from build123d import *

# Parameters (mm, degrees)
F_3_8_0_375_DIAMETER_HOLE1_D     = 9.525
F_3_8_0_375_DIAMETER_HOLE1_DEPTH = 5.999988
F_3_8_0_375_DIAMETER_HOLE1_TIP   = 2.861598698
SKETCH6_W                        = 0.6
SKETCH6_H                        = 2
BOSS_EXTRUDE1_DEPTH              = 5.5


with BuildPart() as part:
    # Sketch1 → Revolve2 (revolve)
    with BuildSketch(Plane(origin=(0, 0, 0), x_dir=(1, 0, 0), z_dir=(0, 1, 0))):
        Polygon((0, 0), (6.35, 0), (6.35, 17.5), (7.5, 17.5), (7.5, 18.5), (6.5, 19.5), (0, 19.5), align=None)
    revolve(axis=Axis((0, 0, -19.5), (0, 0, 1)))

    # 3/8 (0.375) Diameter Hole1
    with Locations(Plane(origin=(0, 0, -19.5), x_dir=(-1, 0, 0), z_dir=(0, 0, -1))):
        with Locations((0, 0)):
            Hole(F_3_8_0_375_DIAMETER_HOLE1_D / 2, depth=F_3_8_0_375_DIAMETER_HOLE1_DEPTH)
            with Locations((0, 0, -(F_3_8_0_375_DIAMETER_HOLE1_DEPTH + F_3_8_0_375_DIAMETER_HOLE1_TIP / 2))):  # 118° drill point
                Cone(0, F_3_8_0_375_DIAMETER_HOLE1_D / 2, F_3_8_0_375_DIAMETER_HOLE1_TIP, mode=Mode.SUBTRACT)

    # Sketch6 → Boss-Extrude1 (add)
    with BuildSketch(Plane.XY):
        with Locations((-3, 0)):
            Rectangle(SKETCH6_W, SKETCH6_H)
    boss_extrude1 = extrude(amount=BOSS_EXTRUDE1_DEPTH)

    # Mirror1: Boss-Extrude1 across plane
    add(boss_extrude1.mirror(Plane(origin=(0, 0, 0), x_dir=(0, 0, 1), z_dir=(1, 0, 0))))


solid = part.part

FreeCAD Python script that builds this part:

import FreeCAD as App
import Part
import Sketcher
Q = App.Units.Quantity

doc = App.newDocument("Part")
body = doc.addObject("PartDesign::Body", "Body")

sketch1 = body.newObject("Sketcher::SketchObject", "Sketch")
sketch1.AttachmentSupport = (doc.getObject("XZ_Plane"), [""])
sketch1.MapMode = "FlatFace"
sketch1.addGeometry(Part.LineSegment(App.Vector(0, 0, 0), App.Vector(6.3, 0, 0)), False)
sketch1.addGeometry(Part.LineSegment(App.Vector(6.3, 0, 0), App.Vector(6.3, -17.5, 0)), False)
sketch1.addGeometry(Part.LineSegment(App.Vector(6.3, -17.5, 0), App.Vector(7.5, -17.5, 0)), False)
sketch1.addGeometry(Part.LineSegment(App.Vector(7.5, -17.5, 0), App.Vector(7.5, -18.5, 0)), False)
sketch1.addGeometry(Part.LineSegment(App.Vector(7.5, -18.5, 0), App.Vector(6.5, -19.5, 0)), False)
sketch1.addGeometry(Part.LineSegment(App.Vector(6.5, -19.5, 0), App.Vector(0, -19.5, 0)), False)
sketch1.addGeometry(Part.LineSegment(App.Vector(0, -19.5, 0), App.Vector(0, 0, 0)), False)
sketch1.addConstraint(Sketcher.Constraint("Coincident", 0, 2, 1, 1))
sketch1.addConstraint(Sketcher.Constraint("Coincident", 1, 2, 2, 1))
sketch1.addConstraint(Sketcher.Constraint("Coincident", 2, 2, 3, 1))
sketch1.addConstraint(Sketcher.Constraint("Coincident", 3, 2, 4, 1))
sketch1.addConstraint(Sketcher.Constraint("Coincident", 4, 2, 5, 1))
sketch1.addConstraint(Sketcher.Constraint("Coincident", 5, 2, 6, 1))
sketch1.addConstraint(Sketcher.Constraint("Coincident", 6, 2, 0, 1))
sketch1.addConstraint(Sketcher.Constraint("Horizontal", 0))
sketch1.addConstraint(Sketcher.Constraint("Vertical", 1))
sketch1.addConstraint(Sketcher.Constraint("Horizontal", 2))
sketch1.addConstraint(Sketcher.Constraint("Vertical", 3))
sketch1.addConstraint(Sketcher.Constraint("Horizontal", 5))
sketch1.addConstraint(Sketcher.Constraint("Vertical", 6))
sketch1.addConstraint(Sketcher.Constraint("Coincident", 6, 2, -1, 1))
sketch1.addConstraint(Sketcher.Constraint("DistanceY", 3, 2, 3, 1, Q("1 mm")))
sketch1.addConstraint(Sketcher.Constraint("Angle", 4, Q("-135 deg")))
sketch1.addConstraint(Sketcher.Constraint("DistanceX", 5, 2, 5, 1, Q("6.5 mm")))
sketch1.addConstraint(Sketcher.Constraint("DistanceY", 1, 2, 1, 1, Q("17.5 mm")))
sketch1.addConstraint(Sketcher.Constraint("DistanceY", 6, 1, 6, 2, Q("19.5 mm")))
sketch1.addConstraint(Sketcher.Constraint("DistanceX", 0, 1, 0, 2, Q("6.35 mm")))
revolution = body.newObject("PartDesign::Revolution", "Revolution")
revolution.Profile = sketch1
revolution.ReferenceAxis = (sketch1, ["V_Axis"])
revolution.Angle = 360

sketch2 = body.newObject("Sketcher::SketchObject", "Sketch001")
sketch2.AttachmentSupport = (doc.getObject("XY_Plane"), [""])
sketch2.MapMode = "FlatFace"
sketch2.AttachmentOffset = App.Placement(App.Vector(0, 0, -19.5), App.Rotation())
sketch2.addGeometry(Part.Circle(App.Vector(0, 0, 0), App.Vector(0, 0, 1), 4.8), False)
sketch2.addConstraint(Sketcher.Constraint("Coincident", 0, 3, -1, 1))
sketch2.addConstraint(Sketcher.Constraint("Diameter", 0, Q("9.525 mm")))
doc.recompute()
hole = body.newObject("PartDesign::Hole", "Hole")
hole.Profile = sketch2
hole.ThreadType = "None"
hole.Diameter = 9.525
hole.DepthType = "Dimension"
hole.Depth = 5.999988
hole.DrillPoint = "Angled"
hole.DrillPointAngle = 118
hole.Reversed = True

sketch3 = body.newObject("Sketcher::SketchObject", "Sketch002")
sketch3.AttachmentSupport = (doc.getObject("XY_Plane"), [""])
sketch3.MapMode = "FlatFace"
sketch3.addGeometry(Part.LineSegment(App.Vector(-3.3, 1, 0), App.Vector(-3.3, -1, 0)), False)
sketch3.addGeometry(Part.LineSegment(App.Vector(-3.3, -1, 0), App.Vector(-2.7, -1, 0)), False)
sketch3.addGeometry(Part.LineSegment(App.Vector(-2.7, -1, 0), App.Vector(-2.7, 1, 0)), False)
sketch3.addGeometry(Part.LineSegment(App.Vector(-2.7, 1, 0), App.Vector(-3.3, 1, 0)), False)
sketch3.addConstraint(Sketcher.Constraint("Coincident", 0, 2, 1, 1))
sketch3.addConstraint(Sketcher.Constraint("Coincident", 1, 2, 2, 1))
sketch3.addConstraint(Sketcher.Constraint("Coincident", 2, 2, 3, 1))
sketch3.addConstraint(Sketcher.Constraint("Coincident", 3, 2, 0, 1))
sketch3.addConstraint(Sketcher.Constraint("Vertical", 0))
sketch3.addConstraint(Sketcher.Constraint("Horizontal", 1))
sketch3.addConstraint(Sketcher.Constraint("Vertical", 2))
sketch3.addConstraint(Sketcher.Constraint("Horizontal", 3))
sketch3.addConstraint(Sketcher.Constraint("DistanceY", 0, 2, 0, 1, Q("2 mm")))
sketch3.addConstraint(Sketcher.Constraint("DistanceX", 1, 1, 1, 2, Q("0.6 mm")))
sketch3.addConstraint(Sketcher.Constraint("DistanceY", 0, 2, -1, 1, Q("1 mm")))
sketch3.addConstraint(Sketcher.Constraint("DistanceX", 0, 2, -1, 1, Q("3.3 mm")))
pad1 = body.newObject("PartDesign::Pad", "Pad")
pad1.Profile = sketch3
pad1.Length = 5.5
doc.recompute()

mirrored = body.newObject("PartDesign::Mirrored", "Mirrored")
mirrored.Originals = [pad1]
mirrored.MirrorPlane = (doc.getObject("YZ_Plane"), [""])
body.Tip = mirrored

doc.recompute()
